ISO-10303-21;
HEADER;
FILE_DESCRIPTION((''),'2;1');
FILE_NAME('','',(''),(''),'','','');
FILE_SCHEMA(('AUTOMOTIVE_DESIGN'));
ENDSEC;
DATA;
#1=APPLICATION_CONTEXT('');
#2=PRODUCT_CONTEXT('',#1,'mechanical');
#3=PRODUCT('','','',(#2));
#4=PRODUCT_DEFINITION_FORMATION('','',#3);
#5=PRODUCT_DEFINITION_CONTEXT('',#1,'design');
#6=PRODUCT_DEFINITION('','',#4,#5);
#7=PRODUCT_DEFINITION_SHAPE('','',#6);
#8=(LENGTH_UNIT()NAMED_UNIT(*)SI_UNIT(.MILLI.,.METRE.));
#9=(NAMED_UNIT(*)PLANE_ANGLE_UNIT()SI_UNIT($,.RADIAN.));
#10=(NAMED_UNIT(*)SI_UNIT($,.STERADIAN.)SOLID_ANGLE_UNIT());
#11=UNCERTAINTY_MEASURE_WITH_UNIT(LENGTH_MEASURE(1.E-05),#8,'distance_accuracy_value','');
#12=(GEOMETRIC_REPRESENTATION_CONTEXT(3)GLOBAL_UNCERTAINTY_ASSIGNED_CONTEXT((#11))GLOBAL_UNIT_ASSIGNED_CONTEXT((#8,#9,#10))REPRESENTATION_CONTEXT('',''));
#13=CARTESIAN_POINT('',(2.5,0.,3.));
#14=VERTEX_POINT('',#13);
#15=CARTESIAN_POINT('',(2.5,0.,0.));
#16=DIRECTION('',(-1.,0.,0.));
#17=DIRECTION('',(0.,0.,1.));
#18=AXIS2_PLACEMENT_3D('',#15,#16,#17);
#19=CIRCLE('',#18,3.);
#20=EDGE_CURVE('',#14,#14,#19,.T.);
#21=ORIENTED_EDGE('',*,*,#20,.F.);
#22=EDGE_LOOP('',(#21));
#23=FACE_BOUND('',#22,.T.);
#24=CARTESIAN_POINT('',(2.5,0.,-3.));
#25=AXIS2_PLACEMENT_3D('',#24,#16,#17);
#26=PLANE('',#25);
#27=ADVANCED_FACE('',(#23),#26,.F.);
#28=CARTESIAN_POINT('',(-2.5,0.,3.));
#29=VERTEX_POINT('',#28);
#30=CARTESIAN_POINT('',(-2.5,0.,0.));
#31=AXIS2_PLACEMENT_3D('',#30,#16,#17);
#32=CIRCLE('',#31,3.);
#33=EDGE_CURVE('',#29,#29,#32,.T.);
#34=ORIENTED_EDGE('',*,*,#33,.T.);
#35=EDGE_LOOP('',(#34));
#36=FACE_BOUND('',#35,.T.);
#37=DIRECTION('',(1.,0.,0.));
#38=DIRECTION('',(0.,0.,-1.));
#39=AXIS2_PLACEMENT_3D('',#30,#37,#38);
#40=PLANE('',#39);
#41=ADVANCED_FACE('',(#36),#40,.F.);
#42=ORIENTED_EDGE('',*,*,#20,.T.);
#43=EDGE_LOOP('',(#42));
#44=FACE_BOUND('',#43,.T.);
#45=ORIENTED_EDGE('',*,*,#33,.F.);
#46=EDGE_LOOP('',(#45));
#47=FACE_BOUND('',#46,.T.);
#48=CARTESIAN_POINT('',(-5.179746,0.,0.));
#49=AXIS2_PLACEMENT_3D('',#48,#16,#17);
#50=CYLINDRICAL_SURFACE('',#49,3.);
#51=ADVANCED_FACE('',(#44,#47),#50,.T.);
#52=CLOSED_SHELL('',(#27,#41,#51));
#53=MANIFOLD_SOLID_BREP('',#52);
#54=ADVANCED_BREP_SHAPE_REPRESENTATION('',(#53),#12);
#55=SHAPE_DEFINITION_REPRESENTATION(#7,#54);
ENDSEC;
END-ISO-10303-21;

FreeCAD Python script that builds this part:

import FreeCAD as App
import Part
import Sketcher
from FreeCAD import Vector


def add_polygon(sketch, points):
    """Adds a closed chain of lines whose ends are joined by coincident constraints."""
    first, n = sketch.GeometryCount, len(points)
    for a, b in zip(points, points[1:] + points[:1]):
        sketch.addGeometry(Part.LineSegment(App.Vector(*a, 0), App.Vector(*b, 0)), False)
    for i in range(n):
        sketch.addConstraint(Sketcher.Constraint("Coincident", first + i, 2, first + (i + 1) % n, 1))

doc = App.newDocument("Part")
body = doc.addObject("PartDesign::Body", "Body")

# Sketch on XZ plane
sketch1 = body.newObject("Sketcher::SketchObject", "Sketch")
sketch1.AttachmentSupport = (doc.getObject("XZ_Plane"), [""])
sketch1.MapMode = "FlatFace"
add_polygon(sketch1, [(-2.5, -3), (-2.5, 0), (2.5, 0), (2.5, -3)])  # lines 0-3
sketch1.addConstraint(Sketcher.Constraint("Vertical", 0))
sketch1.addConstraint(Sketcher.Constraint("Horizontal", 1))
sketch1.addConstraint(Sketcher.Constraint("Vertical", 2))
sketch1.addConstraint(Sketcher.Constraint("Horizontal", 3))
sketch1.addConstraint(Sketcher.Constraint("Symmetric", 0, 2, 1, 2, -1, 1))
sketch1.addConstraint(Sketcher.Constraint("DistanceX", 1, 1, 1, 2, 5.0))
sketch1.addConstraint(Sketcher.Constraint("DistanceY", 0, 1, 0, 2, 3.0))
revolution = body.newObject("PartDesign::Revolution", "Revolution")
revolution.Profile = sketch1
revolution.ReferenceAxis = (sketch1, ["H_Axis"])
revolution.Angle = 360

doc.recompute()
